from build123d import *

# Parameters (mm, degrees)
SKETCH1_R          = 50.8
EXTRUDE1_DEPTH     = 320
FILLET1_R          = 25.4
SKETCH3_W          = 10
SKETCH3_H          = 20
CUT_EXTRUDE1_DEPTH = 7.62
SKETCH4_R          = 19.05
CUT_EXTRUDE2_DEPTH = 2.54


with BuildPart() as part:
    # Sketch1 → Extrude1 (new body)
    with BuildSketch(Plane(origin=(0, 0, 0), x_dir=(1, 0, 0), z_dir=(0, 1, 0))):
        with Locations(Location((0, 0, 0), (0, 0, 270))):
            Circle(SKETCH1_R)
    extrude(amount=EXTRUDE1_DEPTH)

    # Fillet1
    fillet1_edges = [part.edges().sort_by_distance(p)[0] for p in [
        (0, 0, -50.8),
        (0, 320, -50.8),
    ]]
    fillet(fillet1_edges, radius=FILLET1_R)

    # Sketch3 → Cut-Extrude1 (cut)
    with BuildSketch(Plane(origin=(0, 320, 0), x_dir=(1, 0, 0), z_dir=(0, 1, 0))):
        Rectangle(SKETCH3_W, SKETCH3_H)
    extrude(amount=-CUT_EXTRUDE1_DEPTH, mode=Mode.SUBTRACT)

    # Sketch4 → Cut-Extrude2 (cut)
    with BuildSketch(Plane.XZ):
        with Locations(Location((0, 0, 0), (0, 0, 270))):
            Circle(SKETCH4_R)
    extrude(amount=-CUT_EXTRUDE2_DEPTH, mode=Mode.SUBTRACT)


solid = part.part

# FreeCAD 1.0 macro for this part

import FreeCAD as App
import Part
import Sketcher
from FreeCAD import Vector
Q = App.Units.Quantity


def edges_at(feature, points):
    """Names of the edges that pass closest to the given points."""
    edges = feature.Shape.Edges
    near = lambda p: min(range(len(edges)), key=lambda i: edges[i].distToShape(Part.Vertex(*p))[0])
    return sorted({f"Edge{near(p) + 1}" for p in points})

doc = App.newDocument("Part")
params = doc.addObject("Spreadsheet::Sheet", "Params")
for row, (alias, value) in enumerate([
    ("sketch1_diameter", "4 in"),
    ("pad1_length", "320 mm"),
    ("fillet_radius", "1 in"),
    ("pocket1_length", "0.3 in"),
    ("sketch3_diameter", "1.5 in"),
    ("pocket2_length", "0.1 in"),
], start=1):
    params.set(f"A{row}", alias)
    params.set(f"B{row}", "=" + value)
    params.setAlias(f"B{row}", alias)

body = doc.addObject("PartDesign::Body", "Body")

sketch1 = body.newObject("Sketcher::SketchObject", "Sketch")
sketch1.AttachmentSupport = (doc.getObject("XZ_Plane"), [""])
sketch1.MapMode = "FlatFace"
sketch1.addGeometry(Part.Circle(Vector(0, 0, 0), Vector(0, 0, 1), 51), False)
sketch1.addConstraint(Sketcher.Constraint("Coincident", 0, 3, -1, 1))
sketch1.addConstraint(Sketcher.Constraint("Diameter", 0, Q("4 in")))
sketch1.setExpression("Constraints[1]", "Params.sketch1_diameter")
pad1 = body.newObject("PartDesign::Pad", "Pad")
pad1.Profile = sketch1
pad1.setExpression("Length", "Params.pad1_length")
pad1.Reversed = True
doc.recompute()

fillet = body.newObject("PartDesign::Fillet", "Fillet")
fillet.Base = (pad1, edges_at(pad1, [(0, 0, -50.8), (0, 320, -50.8)]))
fillet.setExpression("Radius", "Params.fillet_radius")

sketch2 = body.newObject("Sketcher::SketchObject", "Sketch001")
sketch2.AttachmentSupport = (doc.getObject("XZ_Plane"), [""])
sketch2.MapMode = "FlatFace"
sketch2.AttachmentOffset = App.Placement(Vector(0, 0, -320), App.Rotation())
sketch2.addGeometry(Part.LineSegment(Vector(-5, -10, 0), Vector(-5, 10, 0)), False)
sketch2.addGeometry(Part.LineSegment(Vector(-5, 10, 0), Vector(5, 10, 0)), False)
sketch2.addGeometry(Part.LineSegment(Vector(5, 10, 0), Vector(5, -10, 0)), False)
sketch2.addGeometry(Part.LineSegment(Vector(5, -10, 0), Vector(-5, -10, 0)), False)
sketch2.addConstraint(Sketcher.Constraint("Coincident", 0, 2, 1, 1))
sketch2.addConstraint(Sketcher.Constraint("Coincident", 1, 2, 2, 1))
sketch2.addConstraint(Sketcher.Constraint("Coincident", 2, 2, 3, 1))
sketch2.addConstraint(Sketcher.Constraint("Coincident", 3, 2, 0, 1))
sketch2.addConstraint(Sketcher.Constraint("Vertical", 0))
sketch2.addConstraint(Sketcher.Constraint("Horizontal", 1))
sketch2.addConstraint(Sketcher.Constraint("Vertical", 2))
sketch2.addConstraint(Sketcher.Constraint("Horizontal", 3))
sketch2.addConstraint(Sketcher.Constraint("Symmetric", 0, 2, 2, 2, -1, 1))
sketch2.addConstraint(Sketcher.Constraint("DistanceX", 1, 1, 1, 2, Q("10 mm")))
sketch2.addConstraint(Sketcher.Constraint("DistanceY", 0, 1, 0, 2, Q("20 mm")))
pocket1 = body.newObject("PartDesign::Pocket", "Pocket")
pocket1.Profile = sketch2
pocket1.setExpression("Length", "Params.pocket1_length")
pocket1.Reversed = True

sketch3 = body.newObject("Sketcher::SketchObject", "Sketch002")
sketch3.AttachmentSupport = (doc.getObject("XZ_Plane"), [""])
sketch3.MapMode = "FlatFace"
sketch3.addGeometry(Part.Circle(Vector(0, 0, 0), Vector(0, 0, 1), 19), False)
sketch3.addConstraint(Sketcher.Constraint("Coincident", 0, 3, -1, 1))
sketch3.addConstraint(Sketcher.Constraint("Diameter", 0, Q("1.5 in")))
sketch3.setExpression("Constraints[1]", "Params.sketch3_diameter")
pocket2 = body.newObject("PartDesign::Pocket", "Pocket001")
pocket2.Profile = sketch3
pocket2.setExpression("Length", "Params.pocket2_length")

doc.recompute()
